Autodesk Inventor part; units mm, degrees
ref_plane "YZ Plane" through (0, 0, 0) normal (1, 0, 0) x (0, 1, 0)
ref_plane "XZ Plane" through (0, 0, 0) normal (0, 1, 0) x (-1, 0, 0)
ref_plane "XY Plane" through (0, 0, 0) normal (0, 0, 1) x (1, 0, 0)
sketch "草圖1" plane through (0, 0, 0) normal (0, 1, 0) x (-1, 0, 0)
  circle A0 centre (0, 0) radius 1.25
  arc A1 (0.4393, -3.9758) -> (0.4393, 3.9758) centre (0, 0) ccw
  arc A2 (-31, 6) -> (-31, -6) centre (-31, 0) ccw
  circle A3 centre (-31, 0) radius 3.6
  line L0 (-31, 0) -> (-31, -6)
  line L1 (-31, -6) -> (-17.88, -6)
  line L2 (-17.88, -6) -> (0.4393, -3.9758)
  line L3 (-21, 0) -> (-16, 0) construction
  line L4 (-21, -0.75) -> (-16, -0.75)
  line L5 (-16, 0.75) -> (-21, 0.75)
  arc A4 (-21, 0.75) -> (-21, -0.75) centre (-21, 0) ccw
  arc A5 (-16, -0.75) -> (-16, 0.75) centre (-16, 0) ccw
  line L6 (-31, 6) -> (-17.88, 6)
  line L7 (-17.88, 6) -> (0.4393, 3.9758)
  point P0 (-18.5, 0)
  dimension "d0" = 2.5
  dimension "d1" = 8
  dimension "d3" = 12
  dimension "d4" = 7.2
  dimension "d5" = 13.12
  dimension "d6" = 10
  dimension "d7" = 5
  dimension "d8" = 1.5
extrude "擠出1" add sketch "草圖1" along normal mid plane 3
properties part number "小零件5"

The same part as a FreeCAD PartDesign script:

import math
import FreeCAD as App
import Part
import Sketcher

V = App.Vector
Q = App.Units.Quantity

doc = App.newDocument("Part")
body = doc.addObject("PartDesign::Body", "Body")

# Sketch on XZ plane
sketch1 = body.newObject("Sketcher::SketchObject", "Sketch")
sketch1.AttachmentSupport = (doc.getObject("XZ_Plane"), [""])
sketch1.MapMode = "FlatFace"
sketch1.addGeometry(Part.LineSegment(V(17.9, -6, 0), V(-0.4, -4, 0)), False)
sketch1.addGeometry(Part.ArcOfCircle(Part.Circle(V(0, 0, 0), V(0, 0, 1), 4), math.radians(96), math.radians(264)), False)
sketch1.addGeometry(Part.LineSegment(V(-0.4, 4, 0), V(17.9, 6, 0)), False)
sketch1.addGeometry(Part.LineSegment(V(17.9, 6, 0), V(31, 6, 0)), False)
sketch1.addGeometry(Part.ArcOfCircle(Part.Circle(V(31, 0, 0), V(0, 0, 1), 6), math.radians(-90), math.radians(90)), False)
sketch1.addGeometry(Part.LineSegment(V(31, -6, 0), V(17.9, -6, 0)), False)
sketch1.addGeometry(Part.Circle(V(31, 0, 0), V(0, 0, 1), 3.6), False)
sketch1.addGeometry(Part.LineSegment(V(16, -0.8, 0), V(21, -0.8, 0)), False)
sketch1.addGeometry(Part.ArcOfCircle(Part.Circle(V(21, 0, 0), V(0, 0, 1), 0.8), math.radians(-90), math.radians(90)), False)
sketch1.addGeometry(Part.LineSegment(V(21, 0.8, 0), V(16, 0.8, 0)), False)
sketch1.addGeometry(Part.ArcOfCircle(Part.Circle(V(16, 0, 0), V(0, 0, 1), 0.8), math.radians(90), math.radians(270)), False)
sketch1.addGeometry(Part.Circle(V(0, 0, 0), V(0, 0, 1), 1.2), False)
sketch1.addConstraint(Sketcher.Constraint("Tangent", 0, 2, 1, 2))
sketch1.addConstraint(Sketcher.Constraint("Tangent", 1, 1, 2, 1))
sketch1.addConstraint(Sketcher.Constraint("Coincident", 2, 2, 3, 1))
sketch1.addConstraint(Sketcher.Constraint("Tangent", 3, 2, 4, 2))
sketch1.addConstraint(Sketcher.Constraint("Tangent", 4, 1, 5, 1))
sketch1.addConstraint(Sketcher.Constraint("Coincident", 5, 2, 0, 1))
sketch1.addConstraint(Sketcher.Constraint("Tangent", 7, 2, 8, 1))
sketch1.addConstraint(Sketcher.Constraint("Tangent", 8, 2, 9, 1))
sketch1.addConstraint(Sketcher.Constraint("Tangent", 9, 2, 10, 1))
sketch1.addConstraint(Sketcher.Constraint("Tangent", 10, 2, 7, 1))
sketch1.addConstraint(Sketcher.Constraint("Horizontal", 3))
sketch1.addConstraint(Sketcher.Constraint("Horizontal", 5))
sketch1.addConstraint(Sketcher.Constraint("Horizontal", 7))
sketch1.addConstraint(Sketcher.Constraint("Horizontal", 9))
sketch1.addConstraint(Sketcher.Constraint("Coincident", 1, 3, -1, 1))
sketch1.addConstraint(Sketcher.Constraint("Coincident", 11, 3, -1, 1))
sketch1.addConstraint(Sketcher.Constraint("Coincident", 6, 3, 4, 3))
sketch1.addConstraint(Sketcher.Constraint("Symmetric", 2, 2, 5, 2, -1))
sketch1.addConstraint(Sketcher.Constraint("PointOnObject", 8, 3, -1))
sketch1.addConstraint(Sketcher.Constraint("Radius", 1, Q("4 mm")))
sketch1.addConstraint(Sketcher.Constraint("Radius", 4, Q("6 mm")))
sketch1.addConstraint(Sketcher.Constraint("Diameter", 6, Q("7.2 mm")))
sketch1.addConstraint(Sketcher.Constraint("Diameter", 11, Q("2.5 mm")))
sketch1.addConstraint(Sketcher.Constraint("DistanceX", 7, 1, 7, 2, Q("5 mm")))
sketch1.addConstraint(Sketcher.Constraint("Radius", 8, Q("0.75 mm")))
sketch1.addConstraint(Sketcher.Constraint("DistanceX", 8, 3, 4, 3, Q("10 mm")))
sketch1.addConstraint(Sketcher.Constraint("DistanceX", 3, 1, 3, 2, Q("13.12 mm")))
sketch1.addConstraint(Sketcher.Constraint("DistanceX", -1, 1, 4, 3, Q("31 mm")))
pad1 = body.newObject("PartDesign::Pad", "Pad")
pad1.Profile = sketch1
pad1.Length = 3
pad1.Midplane = True

doc.recompute()
